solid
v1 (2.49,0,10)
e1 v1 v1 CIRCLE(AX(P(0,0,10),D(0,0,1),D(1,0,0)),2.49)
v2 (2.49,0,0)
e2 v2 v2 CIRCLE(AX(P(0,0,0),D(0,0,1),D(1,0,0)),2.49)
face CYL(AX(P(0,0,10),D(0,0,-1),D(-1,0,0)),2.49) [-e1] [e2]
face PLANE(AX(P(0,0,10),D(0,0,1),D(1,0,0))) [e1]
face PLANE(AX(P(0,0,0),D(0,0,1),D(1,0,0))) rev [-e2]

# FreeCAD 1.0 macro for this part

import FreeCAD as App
import Part
import Sketcher

V = App.Vector

doc = App.newDocument("Part")
body = doc.addObject("PartDesign::Body", "Body")

sketch1 = body.newObject("Sketcher::SketchObject", "Sketch")
sketch1.AttachmentSupport = (doc.getObject("XY_Plane"), [""])
sketch1.MapMode = "FlatFace"
sketch1.addGeometry(Part.Circle(V(0, 0, 0), V(0, 0, 1), 2.5), False)
sketch1.addConstraint(Sketcher.Constraint("Coincident", 0, 3, -1, 1))
sketch1.addConstraint(Sketcher.Constraint("Diameter", 0, 4.98))
pad1 = body.newObject("PartDesign::Pad", "Pad")
pad1.Profile = sketch1
pad1.Length = 10

doc.recompute()
